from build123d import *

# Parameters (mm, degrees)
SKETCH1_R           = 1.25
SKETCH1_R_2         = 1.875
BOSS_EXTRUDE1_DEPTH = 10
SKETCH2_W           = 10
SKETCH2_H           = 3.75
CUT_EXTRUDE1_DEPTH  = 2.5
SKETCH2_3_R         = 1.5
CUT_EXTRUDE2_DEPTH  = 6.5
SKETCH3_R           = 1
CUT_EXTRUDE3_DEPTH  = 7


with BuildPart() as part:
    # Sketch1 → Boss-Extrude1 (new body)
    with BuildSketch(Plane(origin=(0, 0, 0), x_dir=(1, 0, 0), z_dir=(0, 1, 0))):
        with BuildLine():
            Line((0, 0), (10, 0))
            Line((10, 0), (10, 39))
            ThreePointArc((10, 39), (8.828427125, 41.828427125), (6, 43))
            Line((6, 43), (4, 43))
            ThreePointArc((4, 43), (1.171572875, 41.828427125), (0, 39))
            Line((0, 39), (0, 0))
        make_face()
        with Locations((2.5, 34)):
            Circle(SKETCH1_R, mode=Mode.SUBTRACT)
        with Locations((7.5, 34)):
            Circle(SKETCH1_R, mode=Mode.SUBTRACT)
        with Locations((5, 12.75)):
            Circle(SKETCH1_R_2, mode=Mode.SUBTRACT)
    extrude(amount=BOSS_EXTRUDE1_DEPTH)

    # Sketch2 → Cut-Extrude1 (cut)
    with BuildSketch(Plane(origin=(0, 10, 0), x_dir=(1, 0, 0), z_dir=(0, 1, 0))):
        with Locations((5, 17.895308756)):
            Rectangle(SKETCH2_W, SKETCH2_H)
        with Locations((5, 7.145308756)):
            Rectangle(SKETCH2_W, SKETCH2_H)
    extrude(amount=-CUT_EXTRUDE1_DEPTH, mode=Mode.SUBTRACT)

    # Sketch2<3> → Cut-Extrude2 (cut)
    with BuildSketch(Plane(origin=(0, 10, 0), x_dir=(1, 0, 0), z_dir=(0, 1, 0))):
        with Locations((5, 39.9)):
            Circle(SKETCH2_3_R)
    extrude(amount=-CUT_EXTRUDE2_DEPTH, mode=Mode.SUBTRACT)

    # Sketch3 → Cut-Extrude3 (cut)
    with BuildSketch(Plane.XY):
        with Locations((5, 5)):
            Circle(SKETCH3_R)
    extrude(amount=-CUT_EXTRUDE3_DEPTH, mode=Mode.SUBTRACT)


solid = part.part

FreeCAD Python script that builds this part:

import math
import FreeCAD as App
import Part
import Sketcher
Q = App.Units.Quantity

doc = App.newDocument("Part")
body = doc.addObject("PartDesign::Body", "Body")

# Sketch on XZ plane
sketch1 = doc.addObject("Sketcher::SketchObject", "Sketch")
body.addObject(sketch1)
sketch1.AttachmentSupport = (doc.XZ_Plane, [""])
sketch1.MapMode = "FlatFace"
sketch1.addGeometry([
    Part.LineSegment(App.Vector(0, 0, 0), App.Vector(10, 0, 0)),  # 0
    Part.LineSegment(App.Vector(10, 0, 0), App.Vector(10, -39, 0)),  # 1
    Part.ArcOfCircle(Part.Circle(App.Vector(6, -39, 0), App.Vector(0, 0, 1), 4), math.radians(-90), math.radians(0)),  # 2
    Part.LineSegment(App.Vector(6, -43, 0), App.Vector(4, -43, 0)),  # 3
    Part.ArcOfCircle(Part.Circle(App.Vector(4, -39, 0), App.Vector(0, 0, 1), 4), math.radians(180), math.radians(270)),  # 4
    Part.LineSegment(App.Vector(0, -39, 0), App.Vector(0, 0, 0)),  # 5
    Part.Circle(App.Vector(5, -12.8, 0), App.Vector(0, 0, 1), 1.9),  # 6
    Part.Circle(App.Vector(2.5, -34, 0), App.Vector(0, 0, 1), 1.2),  # 7
    Part.Circle(App.Vector(7.5, -34, 0), App.Vector(0, 0, 1), 1.2),  # 8
], False)
sketch1.addConstraint([
    Sketcher.Constraint("Coincident", 0, 2, 1, 1),
    Sketcher.Constraint("Tangent", 1, 2, 2, 2),
    Sketcher.Constraint("Tangent", 2, 1, 3, 1),
    Sketcher.Constraint("Tangent", 3, 2, 4, 2),
    Sketcher.Constraint("Tangent", 4, 1, 5, 1),
    Sketcher.Constraint("Coincident", 5, 2, 0, 1),
    Sketcher.Constraint("Horizontal", 0),
    Sketcher.Constraint("Vertical", 1),
    Sketcher.Constraint("Horizontal", 3),
    Sketcher.Constraint("Vertical", 5),
    Sketcher.Constraint("Coincident", 5, 2, -1, 1),
    Sketcher.Constraint("Equal", 2, 4),
    Sketcher.Constraint("Equal", 7, 8),
    Sketcher.Constraint("Horizontal", 7, 3, 8, 3),
    Sketcher.Constraint("Radius", 2, Q("4 mm")),
    Sketcher.Constraint("Diameter", 7, Q("2.5 mm")),
    Sketcher.Constraint("Diameter", 6, Q("3.75 mm")),
    Sketcher.Constraint("DistanceX", 0, 1, 0, 2, Q("10 mm")),
    Sketcher.Constraint("DistanceY", 1, 2, 1, 1, Q("39 mm")),
    Sketcher.Constraint("DistanceX", -1, 1, 6, 3, Q("5 mm")),
    Sketcher.Constraint("DistanceY", 7, 3, -1, 1, Q("34 mm")),
    Sketcher.Constraint("DistanceX", 7, 3, 8, 3, Q("5 mm")),
    Sketcher.Constraint("DistanceX", -1, 1, 7, 3, Q("2.5 mm")),
    Sketcher.Constraint("DistanceY", 6, 3, -1, 1, Q("12.75 mm")),
])
pad1 = doc.addObject("PartDesign::Pad", "Pad")
body.addObject(pad1)
pad1.Profile = sketch1
pad1.Length = 10
pad1.Reversed = True

# Sketch on XZ plane
sketch2 = doc.addObject("Sketcher::SketchObject", "Sketch001")
body.addObject(sketch2)
sketch2.AttachmentSupport = (doc.XZ_Plane, [""])
sketch2.MapMode = "FlatFace"
sketch2.AttachmentOffset = App.Placement(App.Vector(0, 0, -10), App.Rotation())
sketch2.addGeometry([
    Part.LineSegment(App.Vector(0, -19.8, 0), App.Vector(0, -16, 0)),  # 0
    Part.LineSegment(App.Vector(0, -16, 0), App.Vector(10, -16, 0)),  # 1
    Part.LineSegment(App.Vector(10, -16, 0), App.Vector(10, -19.8, 0)),  # 2
    Part.LineSegment(App.Vector(10, -19.8, 0), App.Vector(0, -19.8, 0)),  # 3
    Part.LineSegment(App.Vector(0, -9, 0), App.Vector(0, -5.3, 0)),  # 4
    Part.LineSegment(App.Vector(0, -5.3, 0), App.Vector(10, -5.3, 0)),  # 5
    Part.LineSegment(App.Vector(10, -5.3, 0), App.Vector(10, -9, 0)),  # 6
    Part.LineSegment(App.Vector(10, -9, 0), App.Vector(0, -9, 0)),  # 7
], False)
sketch2.addConstraint([
    Sketcher.Constraint("Coincident", 0, 2, 1, 1),
    Sketcher.Constraint("Coincident", 1, 2, 2, 1),
    Sketcher.Constraint("Coincident", 2, 2, 3, 1),
    Sketcher.Constraint("Coincident", 3, 2, 0, 1),
    Sketcher.Constraint("Coincident", 4, 2, 5, 1),
    Sketcher.Constraint("Coincident", 5, 2, 6, 1),
    Sketcher.Constraint("Coincident", 6, 2, 7, 1),
    Sketcher.Constraint("Coincident", 7, 2, 4, 1),
    Sketcher.Constraint("Vertical", 0),
    Sketcher.Constraint("Horizontal", 1),
    Sketcher.Constraint("Vertical", 2),
    Sketcher.Constraint("Horizontal", 3),
    Sketcher.Constraint("Vertical", 4),
    Sketcher.Constraint("Horizontal", 5),
    Sketcher.Constraint("Vertical", 6),
    Sketcher.Constraint("Horizontal", 7),
    Sketcher.Constraint("PointOnObject", 0, 2, -2),
    Sketcher.Constraint("PointOnObject", 4, 2, -2),
    Sketcher.Constraint("Vertical", 2, 2, 5, 2),
    Sketcher.Constraint("Equal", 2, 4),
    Sketcher.Constraint("DistanceX", 1, 1, 1, 2, Q("10 mm")),
    Sketcher.Constraint("DistanceY", 1, 2, 6, 2, Q("7 mm")),
    Sketcher.Constraint("DistanceY", 0, 1, 0, 2, Q("3.75 mm")),
    Sketcher.Constraint("DistanceY", 0, 2, -1, 1, Q("16.020309 mm")),
])
pocket1 = doc.addObject("PartDesign::Pocket", "Pocket")
body.addObject(pocket1)
pocket1.Profile = sketch2
pocket1.Length = 2.5
pocket1.Reversed = True

# Sketch on XZ plane
sketch3 = doc.addObject("Sketcher::SketchObject", "Sketch002")
body.addObject(sketch3)
sketch3.AttachmentSupport = (doc.XZ_Plane, [""])
sketch3.MapMode = "FlatFace"
sketch3.AttachmentOffset = App.Placement(App.Vector(0, 0, -10), App.Rotation())
sketch3.addGeometry(Part.Circle(App.Vector(5, -39.9, 0), App.Vector(0, 0, 1), 1.5), False)
sketch3.addConstraint([
    Sketcher.Constraint("Diameter", 0, Q("3 mm")),
    Sketcher.Constraint("DistanceX", -1, 1, 0, 3, Q("5 mm")),
    Sketcher.Constraint("DistanceY", 0, 3, -1, 1, Q("39.9 mm")),
])
pocket2 = doc.addObject("PartDesign::Pocket", "Pocket001")
body.addObject(pocket2)
pocket2.Profile = sketch3
pocket2.Length = 6.5
pocket2.Reversed = True

# Sketch on XY plane
sketch4 = doc.addObject("Sketcher::SketchObject", "Sketch003")
body.addObject(sketch4)
sketch4.AttachmentSupport = (doc.XY_Plane, [""])
sketch4.MapMode = "FlatFace"
sketch4.addGeometry(Part.Circle(App.Vector(5, 5, 0), App.Vector(0, 0, 1), 1), False)
sketch4.addConstraint([
    Sketcher.Constraint("Diameter", 0, Q("2 mm")),
    Sketcher.Constraint("DistanceX", -1, 1, 0, 3, Q("5 mm")),
    Sketcher.Constraint("DistanceY", -1, 1, 0, 3, Q("5 mm")),
])
pocket3 = doc.addObject("PartDesign::Pocket", "Pocket002")
body.addObject(pocket3)
pocket3.Profile = sketch4
pocket3.Length = 7

doc.recompute()
